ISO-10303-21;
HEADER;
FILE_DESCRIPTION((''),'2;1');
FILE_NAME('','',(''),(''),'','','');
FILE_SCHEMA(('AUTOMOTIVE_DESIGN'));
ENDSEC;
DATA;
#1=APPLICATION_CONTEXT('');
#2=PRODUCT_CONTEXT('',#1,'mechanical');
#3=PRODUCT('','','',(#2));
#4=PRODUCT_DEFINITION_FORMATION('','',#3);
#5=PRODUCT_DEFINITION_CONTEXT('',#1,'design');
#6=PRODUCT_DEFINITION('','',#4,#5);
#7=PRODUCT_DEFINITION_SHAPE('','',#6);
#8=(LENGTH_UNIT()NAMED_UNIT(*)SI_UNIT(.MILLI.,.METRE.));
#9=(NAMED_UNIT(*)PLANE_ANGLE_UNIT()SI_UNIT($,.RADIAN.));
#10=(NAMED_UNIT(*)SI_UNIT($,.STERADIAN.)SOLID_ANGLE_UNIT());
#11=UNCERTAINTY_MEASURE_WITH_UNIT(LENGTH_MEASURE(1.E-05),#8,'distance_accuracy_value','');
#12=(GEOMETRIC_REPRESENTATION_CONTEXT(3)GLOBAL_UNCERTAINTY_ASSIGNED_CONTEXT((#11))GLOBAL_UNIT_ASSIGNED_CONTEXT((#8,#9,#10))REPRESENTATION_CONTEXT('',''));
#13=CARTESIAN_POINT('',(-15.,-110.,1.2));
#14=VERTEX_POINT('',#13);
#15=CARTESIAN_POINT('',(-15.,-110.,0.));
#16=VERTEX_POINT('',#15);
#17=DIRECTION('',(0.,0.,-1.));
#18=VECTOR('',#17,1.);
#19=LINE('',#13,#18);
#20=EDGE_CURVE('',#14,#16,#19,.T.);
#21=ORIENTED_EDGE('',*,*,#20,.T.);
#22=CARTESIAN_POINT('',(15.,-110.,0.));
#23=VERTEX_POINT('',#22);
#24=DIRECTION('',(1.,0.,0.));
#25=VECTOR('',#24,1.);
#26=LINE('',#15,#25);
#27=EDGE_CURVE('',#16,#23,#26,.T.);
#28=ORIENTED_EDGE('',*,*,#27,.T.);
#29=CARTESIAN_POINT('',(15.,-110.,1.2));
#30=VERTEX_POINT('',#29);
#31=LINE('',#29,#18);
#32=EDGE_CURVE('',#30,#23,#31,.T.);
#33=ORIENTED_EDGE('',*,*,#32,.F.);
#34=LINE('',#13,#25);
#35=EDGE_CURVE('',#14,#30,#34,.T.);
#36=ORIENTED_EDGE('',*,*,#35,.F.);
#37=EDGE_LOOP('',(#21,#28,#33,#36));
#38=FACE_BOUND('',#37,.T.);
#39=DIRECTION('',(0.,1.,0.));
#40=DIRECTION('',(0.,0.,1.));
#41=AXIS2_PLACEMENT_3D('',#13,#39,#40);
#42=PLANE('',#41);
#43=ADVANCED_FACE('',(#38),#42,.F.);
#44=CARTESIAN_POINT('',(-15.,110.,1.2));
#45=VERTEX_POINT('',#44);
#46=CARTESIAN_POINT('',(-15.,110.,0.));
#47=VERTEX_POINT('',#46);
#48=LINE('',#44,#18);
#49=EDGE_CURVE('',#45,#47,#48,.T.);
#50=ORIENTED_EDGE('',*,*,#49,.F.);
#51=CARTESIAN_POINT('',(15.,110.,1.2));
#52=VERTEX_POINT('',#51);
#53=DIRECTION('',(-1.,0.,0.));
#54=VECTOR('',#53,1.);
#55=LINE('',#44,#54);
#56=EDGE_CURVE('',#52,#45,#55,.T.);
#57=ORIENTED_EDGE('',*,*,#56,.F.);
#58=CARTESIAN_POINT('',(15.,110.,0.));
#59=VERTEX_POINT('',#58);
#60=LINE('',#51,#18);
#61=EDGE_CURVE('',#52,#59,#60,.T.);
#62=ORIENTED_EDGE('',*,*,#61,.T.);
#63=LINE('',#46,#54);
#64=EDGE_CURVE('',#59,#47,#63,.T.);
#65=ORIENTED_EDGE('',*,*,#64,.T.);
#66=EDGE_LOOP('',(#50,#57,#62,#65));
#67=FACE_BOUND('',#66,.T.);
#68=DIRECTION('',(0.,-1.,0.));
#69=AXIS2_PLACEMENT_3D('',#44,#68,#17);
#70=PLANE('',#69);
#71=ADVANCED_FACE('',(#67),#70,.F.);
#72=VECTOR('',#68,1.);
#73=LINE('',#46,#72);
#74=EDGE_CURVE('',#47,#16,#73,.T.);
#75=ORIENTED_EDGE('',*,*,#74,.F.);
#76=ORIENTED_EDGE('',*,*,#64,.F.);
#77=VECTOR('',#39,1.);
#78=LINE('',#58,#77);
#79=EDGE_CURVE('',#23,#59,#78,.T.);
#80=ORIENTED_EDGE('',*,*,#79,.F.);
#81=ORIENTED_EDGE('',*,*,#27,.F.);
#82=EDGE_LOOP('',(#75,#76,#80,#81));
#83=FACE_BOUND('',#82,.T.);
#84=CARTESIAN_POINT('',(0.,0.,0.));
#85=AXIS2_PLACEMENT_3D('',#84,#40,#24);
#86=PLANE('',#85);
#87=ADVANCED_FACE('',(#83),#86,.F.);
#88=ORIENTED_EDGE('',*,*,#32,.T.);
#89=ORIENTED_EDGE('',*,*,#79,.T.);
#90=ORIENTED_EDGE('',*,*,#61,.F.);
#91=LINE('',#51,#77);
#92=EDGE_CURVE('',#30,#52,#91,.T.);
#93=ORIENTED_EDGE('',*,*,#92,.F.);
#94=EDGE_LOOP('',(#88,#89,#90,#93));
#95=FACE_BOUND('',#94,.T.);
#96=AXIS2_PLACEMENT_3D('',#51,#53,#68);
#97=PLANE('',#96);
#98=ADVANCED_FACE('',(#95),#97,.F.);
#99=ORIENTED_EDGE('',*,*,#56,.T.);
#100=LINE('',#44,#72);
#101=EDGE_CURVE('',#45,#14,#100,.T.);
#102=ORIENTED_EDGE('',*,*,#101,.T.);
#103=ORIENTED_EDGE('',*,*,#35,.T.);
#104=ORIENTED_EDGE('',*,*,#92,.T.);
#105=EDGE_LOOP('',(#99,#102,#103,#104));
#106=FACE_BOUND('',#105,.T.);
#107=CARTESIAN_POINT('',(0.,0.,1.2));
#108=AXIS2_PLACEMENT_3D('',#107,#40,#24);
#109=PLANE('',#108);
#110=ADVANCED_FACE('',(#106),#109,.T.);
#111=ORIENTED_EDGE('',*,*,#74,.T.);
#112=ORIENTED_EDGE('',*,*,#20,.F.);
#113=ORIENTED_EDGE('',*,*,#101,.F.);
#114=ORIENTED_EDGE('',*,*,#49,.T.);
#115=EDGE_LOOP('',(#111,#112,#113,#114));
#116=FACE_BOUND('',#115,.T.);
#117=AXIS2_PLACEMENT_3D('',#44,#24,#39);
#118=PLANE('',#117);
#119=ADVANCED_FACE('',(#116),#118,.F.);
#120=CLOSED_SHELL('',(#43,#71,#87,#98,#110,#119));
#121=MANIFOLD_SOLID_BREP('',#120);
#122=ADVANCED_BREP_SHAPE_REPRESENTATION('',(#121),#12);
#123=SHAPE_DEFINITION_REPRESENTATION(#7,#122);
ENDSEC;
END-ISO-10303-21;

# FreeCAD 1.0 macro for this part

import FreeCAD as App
import Part
import Sketcher
Q = App.Units.Quantity

doc = App.newDocument("Part")
params = doc.addObject("Spreadsheet::Sheet", "Params")
for row, (alias, value) in enumerate([
    ("sketch1_width", "30 mm"),
    ("sketch1_height", "220 mm"),
    ("pad1_length", "1.2 mm"),
], start=1):
    params.set(f"A{row}", alias)
    params.set(f"B{row}", "=" + value)
    params.setAlias(f"B{row}", alias)

body = doc.addObject("PartDesign::Body", "Body")

# Sketch on XY plane
sketch1 = body.newObject("Sketcher::SketchObject", "Sketch")
sketch1.AttachmentSupport = (doc.getObject("XY_Plane"), [""])
sketch1.MapMode = "FlatFace"
sketch1.addGeometry([
    Part.LineSegment(App.Vector(-15, 110, 0), App.Vector(-15, -110, 0)),
    Part.LineSegment(App.Vector(-15, -110, 0), App.Vector(15, -110, 0)),
    Part.LineSegment(App.Vector(15, -110, 0), App.Vector(15, 110, 0)),
    Part.LineSegment(App.Vector(15, 110, 0), App.Vector(-15, 110, 0)),
], False)
sketch1.addConstraint([
    Sketcher.Constraint("Coincident", 0, 2, 1, 1),
    Sketcher.Constraint("Coincident", 1, 2, 2, 1),
    Sketcher.Constraint("Coincident", 2, 2, 3, 1),
    Sketcher.Constraint("Coincident", 3, 2, 0, 1),
    Sketcher.Constraint("Vertical", 0),
    Sketcher.Constraint("Horizontal", 1),
    Sketcher.Constraint("Vertical", 2),
    Sketcher.Constraint("Horizontal", 3),
    Sketcher.Constraint("Symmetric", 0, 2, 2, 2, -1, 1),
    Sketcher.Constraint("DistanceX", 1, 1, 1, 2, Q("30 mm")),
    Sketcher.Constraint("DistanceY", 0, 2, 0, 1, Q("220 mm")),
])
sketch1.setExpression("Constraints[9]", "Params.sketch1_width")
sketch1.setExpression("Constraints[10]", "Params.sketch1_height")
pad1 = body.newObject("PartDesign::Pad", "Pad")
pad1.Profile = sketch1
pad1.setExpression("Length", "Params.pad1_length")

doc.recompute()
